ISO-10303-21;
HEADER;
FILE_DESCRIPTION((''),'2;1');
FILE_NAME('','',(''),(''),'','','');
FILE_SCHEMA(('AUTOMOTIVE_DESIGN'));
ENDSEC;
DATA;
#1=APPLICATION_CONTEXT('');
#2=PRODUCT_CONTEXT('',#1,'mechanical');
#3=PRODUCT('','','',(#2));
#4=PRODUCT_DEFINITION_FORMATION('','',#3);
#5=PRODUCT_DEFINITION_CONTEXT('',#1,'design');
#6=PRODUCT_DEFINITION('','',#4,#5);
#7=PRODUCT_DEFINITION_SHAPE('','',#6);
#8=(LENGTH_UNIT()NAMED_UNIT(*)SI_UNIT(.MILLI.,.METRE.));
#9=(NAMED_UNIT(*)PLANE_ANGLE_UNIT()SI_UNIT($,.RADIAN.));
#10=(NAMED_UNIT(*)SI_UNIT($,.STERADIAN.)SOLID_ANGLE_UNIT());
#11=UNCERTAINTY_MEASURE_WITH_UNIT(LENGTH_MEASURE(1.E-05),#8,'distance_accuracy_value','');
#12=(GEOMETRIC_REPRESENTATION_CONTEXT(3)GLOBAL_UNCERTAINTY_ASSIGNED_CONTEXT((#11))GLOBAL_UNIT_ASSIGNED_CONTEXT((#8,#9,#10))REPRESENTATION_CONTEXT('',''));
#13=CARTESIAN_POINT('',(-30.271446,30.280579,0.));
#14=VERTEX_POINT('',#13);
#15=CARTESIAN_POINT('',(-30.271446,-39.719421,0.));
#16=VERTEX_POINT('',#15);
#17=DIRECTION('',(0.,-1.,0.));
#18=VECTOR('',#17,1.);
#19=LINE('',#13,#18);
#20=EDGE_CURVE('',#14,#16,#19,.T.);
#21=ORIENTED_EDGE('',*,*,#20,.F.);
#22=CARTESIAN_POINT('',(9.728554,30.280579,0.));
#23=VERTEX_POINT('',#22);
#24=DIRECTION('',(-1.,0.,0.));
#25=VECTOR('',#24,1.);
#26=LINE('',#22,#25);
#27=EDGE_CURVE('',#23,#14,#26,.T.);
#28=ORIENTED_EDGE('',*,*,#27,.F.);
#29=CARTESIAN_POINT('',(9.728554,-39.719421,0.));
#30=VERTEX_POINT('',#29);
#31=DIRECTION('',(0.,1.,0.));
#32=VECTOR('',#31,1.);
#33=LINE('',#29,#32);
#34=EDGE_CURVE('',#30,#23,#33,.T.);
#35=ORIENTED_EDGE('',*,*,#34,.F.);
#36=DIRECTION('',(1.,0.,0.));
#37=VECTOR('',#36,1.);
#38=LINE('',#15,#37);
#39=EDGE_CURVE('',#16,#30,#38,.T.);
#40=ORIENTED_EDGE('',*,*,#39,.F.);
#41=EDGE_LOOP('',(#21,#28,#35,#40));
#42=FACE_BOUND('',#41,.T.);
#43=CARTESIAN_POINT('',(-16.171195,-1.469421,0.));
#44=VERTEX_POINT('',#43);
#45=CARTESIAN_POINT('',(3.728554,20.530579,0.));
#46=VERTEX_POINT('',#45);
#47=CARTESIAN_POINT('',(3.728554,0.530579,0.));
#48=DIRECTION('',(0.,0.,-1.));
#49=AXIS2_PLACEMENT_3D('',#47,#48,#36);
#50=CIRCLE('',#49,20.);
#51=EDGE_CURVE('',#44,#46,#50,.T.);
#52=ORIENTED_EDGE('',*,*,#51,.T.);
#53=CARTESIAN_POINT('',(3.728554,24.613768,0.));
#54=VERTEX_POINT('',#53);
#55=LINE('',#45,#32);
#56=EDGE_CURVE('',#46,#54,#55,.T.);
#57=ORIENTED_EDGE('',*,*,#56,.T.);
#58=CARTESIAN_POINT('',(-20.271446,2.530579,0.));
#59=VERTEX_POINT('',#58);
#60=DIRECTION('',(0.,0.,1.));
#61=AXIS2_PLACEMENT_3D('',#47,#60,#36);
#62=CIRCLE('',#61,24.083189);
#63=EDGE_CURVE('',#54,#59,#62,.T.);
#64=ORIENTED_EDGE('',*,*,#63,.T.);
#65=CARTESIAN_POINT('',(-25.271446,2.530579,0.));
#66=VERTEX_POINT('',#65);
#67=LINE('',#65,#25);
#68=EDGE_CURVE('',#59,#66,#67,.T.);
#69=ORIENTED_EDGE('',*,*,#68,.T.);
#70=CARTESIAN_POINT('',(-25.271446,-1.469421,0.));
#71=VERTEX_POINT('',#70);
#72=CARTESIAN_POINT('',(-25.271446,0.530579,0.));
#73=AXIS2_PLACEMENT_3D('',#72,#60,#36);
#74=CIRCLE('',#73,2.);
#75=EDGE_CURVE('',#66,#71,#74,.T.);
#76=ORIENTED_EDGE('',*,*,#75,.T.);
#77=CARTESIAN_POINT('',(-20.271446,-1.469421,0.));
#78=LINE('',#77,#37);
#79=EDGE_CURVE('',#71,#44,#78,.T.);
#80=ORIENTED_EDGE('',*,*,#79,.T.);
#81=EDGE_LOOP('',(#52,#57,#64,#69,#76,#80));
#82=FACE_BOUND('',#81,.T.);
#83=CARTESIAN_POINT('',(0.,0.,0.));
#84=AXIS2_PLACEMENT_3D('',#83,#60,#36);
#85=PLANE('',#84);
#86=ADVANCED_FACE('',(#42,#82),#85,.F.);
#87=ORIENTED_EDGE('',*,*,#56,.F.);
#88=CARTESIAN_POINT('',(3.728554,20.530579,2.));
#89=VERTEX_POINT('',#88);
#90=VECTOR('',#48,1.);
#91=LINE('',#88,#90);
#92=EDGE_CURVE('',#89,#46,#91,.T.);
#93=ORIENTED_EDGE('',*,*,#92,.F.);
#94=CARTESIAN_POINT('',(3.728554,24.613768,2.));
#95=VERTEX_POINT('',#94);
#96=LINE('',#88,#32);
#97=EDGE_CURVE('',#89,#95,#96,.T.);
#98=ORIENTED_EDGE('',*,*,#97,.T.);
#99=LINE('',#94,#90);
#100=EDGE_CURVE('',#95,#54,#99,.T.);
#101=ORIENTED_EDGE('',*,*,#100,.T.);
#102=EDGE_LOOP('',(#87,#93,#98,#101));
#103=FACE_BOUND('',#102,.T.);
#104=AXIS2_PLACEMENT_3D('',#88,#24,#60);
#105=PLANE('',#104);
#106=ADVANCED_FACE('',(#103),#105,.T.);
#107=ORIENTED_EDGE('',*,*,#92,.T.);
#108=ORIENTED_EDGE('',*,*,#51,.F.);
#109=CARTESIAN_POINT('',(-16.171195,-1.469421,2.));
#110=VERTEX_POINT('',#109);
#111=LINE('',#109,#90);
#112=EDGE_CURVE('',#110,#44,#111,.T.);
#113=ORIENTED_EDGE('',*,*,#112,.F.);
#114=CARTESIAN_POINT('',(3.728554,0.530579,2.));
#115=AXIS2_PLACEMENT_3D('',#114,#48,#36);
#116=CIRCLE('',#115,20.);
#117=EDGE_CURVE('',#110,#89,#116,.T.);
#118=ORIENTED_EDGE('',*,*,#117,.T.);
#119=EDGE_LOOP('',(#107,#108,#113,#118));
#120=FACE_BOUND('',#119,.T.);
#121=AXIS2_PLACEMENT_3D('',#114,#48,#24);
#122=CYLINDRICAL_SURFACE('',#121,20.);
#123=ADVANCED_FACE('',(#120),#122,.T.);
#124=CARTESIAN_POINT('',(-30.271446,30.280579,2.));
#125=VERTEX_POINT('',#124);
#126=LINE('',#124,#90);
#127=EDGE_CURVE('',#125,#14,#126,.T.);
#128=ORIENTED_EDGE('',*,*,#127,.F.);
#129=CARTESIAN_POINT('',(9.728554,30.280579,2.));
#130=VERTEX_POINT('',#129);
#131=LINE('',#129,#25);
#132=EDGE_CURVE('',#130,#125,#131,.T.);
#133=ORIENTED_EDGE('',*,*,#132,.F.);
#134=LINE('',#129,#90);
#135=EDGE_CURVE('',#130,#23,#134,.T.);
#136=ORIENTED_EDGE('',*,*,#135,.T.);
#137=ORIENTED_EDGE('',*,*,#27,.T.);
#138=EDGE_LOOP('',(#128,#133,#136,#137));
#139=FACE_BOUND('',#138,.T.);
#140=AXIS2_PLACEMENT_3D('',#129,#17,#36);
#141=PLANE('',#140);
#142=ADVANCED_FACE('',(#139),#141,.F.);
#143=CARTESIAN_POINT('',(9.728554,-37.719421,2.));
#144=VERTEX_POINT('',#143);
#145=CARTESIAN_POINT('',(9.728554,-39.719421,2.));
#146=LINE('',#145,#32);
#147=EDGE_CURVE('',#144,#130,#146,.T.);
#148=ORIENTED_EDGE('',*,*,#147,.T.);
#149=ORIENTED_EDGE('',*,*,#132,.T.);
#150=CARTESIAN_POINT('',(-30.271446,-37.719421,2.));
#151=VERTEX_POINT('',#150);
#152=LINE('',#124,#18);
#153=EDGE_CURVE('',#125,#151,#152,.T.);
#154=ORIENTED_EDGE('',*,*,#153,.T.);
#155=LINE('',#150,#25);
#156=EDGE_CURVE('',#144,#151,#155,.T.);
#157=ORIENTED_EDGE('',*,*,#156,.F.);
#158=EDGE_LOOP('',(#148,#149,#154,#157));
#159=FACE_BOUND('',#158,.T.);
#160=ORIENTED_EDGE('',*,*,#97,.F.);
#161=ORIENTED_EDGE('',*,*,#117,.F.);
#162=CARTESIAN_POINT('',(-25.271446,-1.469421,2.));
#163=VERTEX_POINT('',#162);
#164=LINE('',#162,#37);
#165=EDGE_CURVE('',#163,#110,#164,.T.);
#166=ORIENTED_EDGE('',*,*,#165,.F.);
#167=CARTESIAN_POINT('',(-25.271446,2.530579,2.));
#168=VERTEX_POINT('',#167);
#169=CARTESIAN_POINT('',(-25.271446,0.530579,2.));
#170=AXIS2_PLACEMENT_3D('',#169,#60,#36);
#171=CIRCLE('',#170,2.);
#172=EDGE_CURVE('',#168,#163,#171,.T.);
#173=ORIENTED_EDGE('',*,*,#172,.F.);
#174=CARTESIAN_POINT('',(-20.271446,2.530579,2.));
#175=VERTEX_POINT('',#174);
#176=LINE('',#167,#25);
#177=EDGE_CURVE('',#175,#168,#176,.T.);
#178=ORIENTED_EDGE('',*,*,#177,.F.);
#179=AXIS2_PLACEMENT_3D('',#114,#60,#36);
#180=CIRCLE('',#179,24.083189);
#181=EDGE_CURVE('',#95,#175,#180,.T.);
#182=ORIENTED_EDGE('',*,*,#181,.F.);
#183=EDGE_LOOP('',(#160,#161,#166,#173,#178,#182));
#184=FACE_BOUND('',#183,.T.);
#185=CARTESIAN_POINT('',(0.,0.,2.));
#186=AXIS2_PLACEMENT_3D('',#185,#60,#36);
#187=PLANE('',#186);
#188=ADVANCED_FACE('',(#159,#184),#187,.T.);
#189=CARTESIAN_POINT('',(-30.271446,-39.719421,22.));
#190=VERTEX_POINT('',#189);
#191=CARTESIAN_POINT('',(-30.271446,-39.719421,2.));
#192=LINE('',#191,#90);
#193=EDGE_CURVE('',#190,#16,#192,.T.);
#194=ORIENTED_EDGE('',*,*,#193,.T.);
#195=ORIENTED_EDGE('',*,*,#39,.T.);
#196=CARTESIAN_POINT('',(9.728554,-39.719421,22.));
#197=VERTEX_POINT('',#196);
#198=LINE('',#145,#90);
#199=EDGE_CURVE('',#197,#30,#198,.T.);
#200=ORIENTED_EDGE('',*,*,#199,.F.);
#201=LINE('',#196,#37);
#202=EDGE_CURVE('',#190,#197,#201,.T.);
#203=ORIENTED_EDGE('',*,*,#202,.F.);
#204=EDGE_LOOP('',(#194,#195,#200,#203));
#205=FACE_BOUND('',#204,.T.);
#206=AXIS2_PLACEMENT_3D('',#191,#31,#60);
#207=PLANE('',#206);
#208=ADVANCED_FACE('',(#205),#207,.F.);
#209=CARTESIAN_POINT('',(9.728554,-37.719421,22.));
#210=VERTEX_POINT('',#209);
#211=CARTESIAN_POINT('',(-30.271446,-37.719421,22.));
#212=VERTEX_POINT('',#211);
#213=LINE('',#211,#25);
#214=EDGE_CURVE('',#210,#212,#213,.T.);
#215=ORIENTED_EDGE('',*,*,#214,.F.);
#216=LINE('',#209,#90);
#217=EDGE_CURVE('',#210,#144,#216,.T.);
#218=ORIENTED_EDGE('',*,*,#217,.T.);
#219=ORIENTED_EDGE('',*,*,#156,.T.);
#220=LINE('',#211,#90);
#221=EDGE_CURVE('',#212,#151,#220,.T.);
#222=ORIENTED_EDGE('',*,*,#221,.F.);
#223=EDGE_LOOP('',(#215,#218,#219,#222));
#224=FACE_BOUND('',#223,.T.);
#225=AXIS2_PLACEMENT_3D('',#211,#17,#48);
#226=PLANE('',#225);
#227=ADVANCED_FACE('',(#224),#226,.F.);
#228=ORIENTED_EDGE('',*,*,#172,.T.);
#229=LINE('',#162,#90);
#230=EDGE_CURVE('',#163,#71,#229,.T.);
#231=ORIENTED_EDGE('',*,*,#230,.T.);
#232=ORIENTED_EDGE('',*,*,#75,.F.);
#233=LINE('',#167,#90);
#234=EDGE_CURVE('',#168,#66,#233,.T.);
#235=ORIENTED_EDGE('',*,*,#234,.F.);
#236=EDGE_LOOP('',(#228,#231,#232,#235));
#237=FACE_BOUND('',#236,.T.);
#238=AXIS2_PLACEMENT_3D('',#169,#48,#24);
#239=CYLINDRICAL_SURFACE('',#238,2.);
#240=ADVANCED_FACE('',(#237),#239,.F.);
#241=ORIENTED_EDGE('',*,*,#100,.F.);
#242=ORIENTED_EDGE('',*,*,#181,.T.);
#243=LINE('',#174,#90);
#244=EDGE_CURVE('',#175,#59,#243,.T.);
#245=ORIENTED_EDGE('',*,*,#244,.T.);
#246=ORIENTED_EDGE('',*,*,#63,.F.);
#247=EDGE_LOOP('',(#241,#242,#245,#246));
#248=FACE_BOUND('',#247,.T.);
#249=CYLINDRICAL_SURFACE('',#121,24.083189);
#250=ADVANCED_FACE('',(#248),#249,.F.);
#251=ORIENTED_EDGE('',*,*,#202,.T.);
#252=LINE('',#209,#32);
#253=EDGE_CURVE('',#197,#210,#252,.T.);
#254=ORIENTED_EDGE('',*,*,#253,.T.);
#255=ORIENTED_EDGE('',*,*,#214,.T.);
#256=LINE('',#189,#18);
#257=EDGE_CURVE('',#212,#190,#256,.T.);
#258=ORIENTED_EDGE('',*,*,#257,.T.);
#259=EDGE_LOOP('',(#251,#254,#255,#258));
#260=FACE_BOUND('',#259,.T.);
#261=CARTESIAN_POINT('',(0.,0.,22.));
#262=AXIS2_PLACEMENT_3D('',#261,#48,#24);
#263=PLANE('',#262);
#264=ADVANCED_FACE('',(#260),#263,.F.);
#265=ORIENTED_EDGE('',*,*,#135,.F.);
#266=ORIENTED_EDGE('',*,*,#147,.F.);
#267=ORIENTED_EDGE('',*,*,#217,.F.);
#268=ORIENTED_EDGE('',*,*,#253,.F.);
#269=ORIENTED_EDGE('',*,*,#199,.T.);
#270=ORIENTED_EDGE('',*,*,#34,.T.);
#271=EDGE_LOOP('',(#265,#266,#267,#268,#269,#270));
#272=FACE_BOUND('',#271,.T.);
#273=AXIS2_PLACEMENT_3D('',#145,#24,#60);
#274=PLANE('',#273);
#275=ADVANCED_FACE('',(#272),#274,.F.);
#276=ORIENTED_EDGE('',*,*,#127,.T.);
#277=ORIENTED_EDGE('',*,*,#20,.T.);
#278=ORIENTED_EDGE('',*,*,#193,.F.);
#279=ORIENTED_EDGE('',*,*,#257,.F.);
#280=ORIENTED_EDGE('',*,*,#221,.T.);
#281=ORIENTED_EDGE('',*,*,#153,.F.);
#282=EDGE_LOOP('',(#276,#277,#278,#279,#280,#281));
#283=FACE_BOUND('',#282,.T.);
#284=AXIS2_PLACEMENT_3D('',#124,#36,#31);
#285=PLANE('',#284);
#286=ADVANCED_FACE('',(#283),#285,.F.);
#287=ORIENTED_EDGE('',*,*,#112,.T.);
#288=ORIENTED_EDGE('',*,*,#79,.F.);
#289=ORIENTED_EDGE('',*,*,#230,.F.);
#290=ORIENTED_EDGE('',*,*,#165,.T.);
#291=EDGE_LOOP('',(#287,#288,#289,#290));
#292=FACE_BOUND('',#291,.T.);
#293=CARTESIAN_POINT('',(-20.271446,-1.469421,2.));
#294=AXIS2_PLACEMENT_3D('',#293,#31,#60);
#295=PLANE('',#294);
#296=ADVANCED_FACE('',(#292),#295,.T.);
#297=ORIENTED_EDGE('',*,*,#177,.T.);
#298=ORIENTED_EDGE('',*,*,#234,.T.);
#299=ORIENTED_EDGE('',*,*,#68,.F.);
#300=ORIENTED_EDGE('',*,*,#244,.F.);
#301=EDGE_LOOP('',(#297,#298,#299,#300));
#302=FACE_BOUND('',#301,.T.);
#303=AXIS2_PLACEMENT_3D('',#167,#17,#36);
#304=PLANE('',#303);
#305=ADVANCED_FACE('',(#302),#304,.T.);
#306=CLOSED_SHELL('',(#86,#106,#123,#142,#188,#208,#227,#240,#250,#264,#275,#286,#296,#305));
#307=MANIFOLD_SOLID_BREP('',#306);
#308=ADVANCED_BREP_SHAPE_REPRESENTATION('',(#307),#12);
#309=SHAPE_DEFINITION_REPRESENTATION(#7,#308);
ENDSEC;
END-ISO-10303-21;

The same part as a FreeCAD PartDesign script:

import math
import FreeCAD as App
import Part
import Sketcher

doc = App.newDocument("Part")
body = doc.addObject("PartDesign::Body", "Body")

# Sketch on XY plane
sketch1 = body.newObject("Sketcher::SketchObject", "Sketch")
sketch1.AttachmentSupport = (doc.getObject("XY_Plane"), [""])
sketch1.MapMode = "FlatFace"
sketch1.addGeometry([
    Part.LineSegment(App.Vector(-30.271446, 30.280579, 0), App.Vector(-30.271446, -39.719421, 0)),  # 0
    Part.LineSegment(App.Vector(-30.271446, -39.719421, 0), App.Vector(9.728554, -39.719421, 0)),  # 1
    Part.LineSegment(App.Vector(9.728554, -39.719421, 0), App.Vector(9.728554, 30.280579, 0)),  # 2
    Part.LineSegment(App.Vector(9.728554, 30.280579, 0), App.Vector(-30.271446, 30.280579, 0)),  # 3
    Part.LineSegment(App.Vector(-16.171195, -1.469421, 0), App.Vector(-25.271446, -1.469421, 0)),  # 4
    Part.ArcOfCircle(Part.Circle(App.Vector(-25.271446, 0.530579, 0), App.Vector(0, 0, 1), 2), math.radians(90), math.radians(270)),  # 5
    Part.LineSegment(App.Vector(-25.271446, 2.530579, 0), App.Vector(-20.271446, 2.530579, 0)),  # 6
    Part.ArcOfCircle(Part.Circle(App.Vector(3.728554, 0.530579, 0), App.Vector(0, 0, 1), 24.083189), math.radians(90), math.radians(175.236358)),  # 7
    Part.LineSegment(App.Vector(3.728554, 24.613768, 0), App.Vector(3.728554, 20.530579, 0)),  # 8
    Part.ArcOfCircle(Part.Circle(App.Vector(3.728554, 0.530579, 0), App.Vector(0, 0, 1), 20), math.radians(90), math.radians(185.73917)),  # 9
], False)
sketch1.addConstraint([
    Sketcher.Constraint("Coincident", 0, 2, 1, 1),
    Sketcher.Constraint("Coincident", 1, 2, 2, 1),
    Sketcher.Constraint("Coincident", 2, 2, 3, 1),
    Sketcher.Constraint("Coincident", 3, 2, 0, 1),
    Sketcher.Constraint("Tangent", 4, 2, 5, 2),
    Sketcher.Constraint("Tangent", 5, 1, 6, 1),
    Sketcher.Constraint("Coincident", 6, 2, 7, 2),
    Sketcher.Constraint("Coincident", 7, 1, 8, 1),
    Sketcher.Constraint("Coincident", 8, 2, 9, 1),
    Sketcher.Constraint("Coincident", 9, 2, 4, 1),
    Sketcher.Constraint("Vertical", 0),
    Sketcher.Constraint("Horizontal", 1),
    Sketcher.Constraint("Vertical", 2),
    Sketcher.Constraint("Horizontal", 3),
    Sketcher.Constraint("Horizontal", 4),
    Sketcher.Constraint("Horizontal", 6),
    Sketcher.Constraint("Vertical", 8),
    Sketcher.Constraint("Coincident", 9, 3, 7, 3),
    Sketcher.Constraint("Horizontal", 5, 3, 7, 3),
    Sketcher.Constraint("Vertical", 9, 3, 7, 1),
    Sketcher.Constraint("Radius", 5, 2.0),
    Sketcher.Constraint("Radius", 9, 20.0),
    Sketcher.Constraint("DistanceX", 1, 1, 1, 2, 40.0),
    Sketcher.Constraint("DistanceX", 6, 1, 6, 2, 5.0),
    Sketcher.Constraint("DistanceY", 0, 2, 0, 1, 70.0),
    Sketcher.Constraint("DistanceX", 5, 3, 7, 3, 29.0),
    Sketcher.Constraint("DistanceX", 0, 2, 5, 3, 5.0),
    Sketcher.Constraint("DistanceY", 0, 2, 5, 3, 40.25),
    Sketcher.Constraint("DistanceY", -1, 1, 5, 3, 0.530579),
    Sketcher.Constraint("DistanceX", 5, 3, -1, 1, 25.271446),
])
pad1 = body.newObject("PartDesign::Pad", "Pad")
pad1.Profile = sketch1
pad1.Length = 2

# Sketch on XY plane
sketch2 = body.newObject("Sketcher::SketchObject", "Sketch001")
sketch2.AttachmentSupport = (doc.getObject("XY_Plane"), [""])
sketch2.MapMode = "FlatFace"
sketch2.AttachmentOffset = App.Placement(App.Vector(0, 0, 2), App.Rotation())
sketch2.addGeometry([
    Part.LineSegment(App.Vector(-30.271446, -37.719421, 0), App.Vector(-30.271446, -39.719421, 0)),
    Part.LineSegment(App.Vector(-30.271446, -39.719421, 0), App.Vector(9.728554, -39.719421, 0)),
    Part.LineSegment(App.Vector(9.728554, -39.719421, 0), App.Vector(9.728554, -37.719421, 0)),
    Part.LineSegment(App.Vector(9.728554, -37.719421, 0), App.Vector(-30.271446, -37.719421, 0)),
], False)
sketch2.addConstraint([
    Sketcher.Constraint("Coincident", 0, 2, 1, 1),
    Sketcher.Constraint("Coincident", 1, 2, 2, 1),
    Sketcher.Constraint("Coincident", 2, 2, 3, 1),
    Sketcher.Constraint("Coincident", 3, 2, 0, 1),
    Sketcher.Constraint("Vertical", 0),
    Sketcher.Constraint("Horizontal", 1),
    Sketcher.Constraint("Vertical", 2),
    Sketcher.Constraint("Horizontal", 3),
    Sketcher.Constraint("DistanceX", 1, 1, 1, 2, 40.0),
    Sketcher.Constraint("DistanceY", 0, 2, 0, 1, 2.0),
    Sketcher.Constraint("DistanceY", 0, 2, -1, 1, 39.719421),
    Sketcher.Constraint("DistanceX", 0, 2, -1, 1, 30.271446),
])
pad2 = body.newObject("PartDesign::Pad", "Pad001")
pad2.Profile = sketch2
pad2.Length = 20

doc.recompute()
